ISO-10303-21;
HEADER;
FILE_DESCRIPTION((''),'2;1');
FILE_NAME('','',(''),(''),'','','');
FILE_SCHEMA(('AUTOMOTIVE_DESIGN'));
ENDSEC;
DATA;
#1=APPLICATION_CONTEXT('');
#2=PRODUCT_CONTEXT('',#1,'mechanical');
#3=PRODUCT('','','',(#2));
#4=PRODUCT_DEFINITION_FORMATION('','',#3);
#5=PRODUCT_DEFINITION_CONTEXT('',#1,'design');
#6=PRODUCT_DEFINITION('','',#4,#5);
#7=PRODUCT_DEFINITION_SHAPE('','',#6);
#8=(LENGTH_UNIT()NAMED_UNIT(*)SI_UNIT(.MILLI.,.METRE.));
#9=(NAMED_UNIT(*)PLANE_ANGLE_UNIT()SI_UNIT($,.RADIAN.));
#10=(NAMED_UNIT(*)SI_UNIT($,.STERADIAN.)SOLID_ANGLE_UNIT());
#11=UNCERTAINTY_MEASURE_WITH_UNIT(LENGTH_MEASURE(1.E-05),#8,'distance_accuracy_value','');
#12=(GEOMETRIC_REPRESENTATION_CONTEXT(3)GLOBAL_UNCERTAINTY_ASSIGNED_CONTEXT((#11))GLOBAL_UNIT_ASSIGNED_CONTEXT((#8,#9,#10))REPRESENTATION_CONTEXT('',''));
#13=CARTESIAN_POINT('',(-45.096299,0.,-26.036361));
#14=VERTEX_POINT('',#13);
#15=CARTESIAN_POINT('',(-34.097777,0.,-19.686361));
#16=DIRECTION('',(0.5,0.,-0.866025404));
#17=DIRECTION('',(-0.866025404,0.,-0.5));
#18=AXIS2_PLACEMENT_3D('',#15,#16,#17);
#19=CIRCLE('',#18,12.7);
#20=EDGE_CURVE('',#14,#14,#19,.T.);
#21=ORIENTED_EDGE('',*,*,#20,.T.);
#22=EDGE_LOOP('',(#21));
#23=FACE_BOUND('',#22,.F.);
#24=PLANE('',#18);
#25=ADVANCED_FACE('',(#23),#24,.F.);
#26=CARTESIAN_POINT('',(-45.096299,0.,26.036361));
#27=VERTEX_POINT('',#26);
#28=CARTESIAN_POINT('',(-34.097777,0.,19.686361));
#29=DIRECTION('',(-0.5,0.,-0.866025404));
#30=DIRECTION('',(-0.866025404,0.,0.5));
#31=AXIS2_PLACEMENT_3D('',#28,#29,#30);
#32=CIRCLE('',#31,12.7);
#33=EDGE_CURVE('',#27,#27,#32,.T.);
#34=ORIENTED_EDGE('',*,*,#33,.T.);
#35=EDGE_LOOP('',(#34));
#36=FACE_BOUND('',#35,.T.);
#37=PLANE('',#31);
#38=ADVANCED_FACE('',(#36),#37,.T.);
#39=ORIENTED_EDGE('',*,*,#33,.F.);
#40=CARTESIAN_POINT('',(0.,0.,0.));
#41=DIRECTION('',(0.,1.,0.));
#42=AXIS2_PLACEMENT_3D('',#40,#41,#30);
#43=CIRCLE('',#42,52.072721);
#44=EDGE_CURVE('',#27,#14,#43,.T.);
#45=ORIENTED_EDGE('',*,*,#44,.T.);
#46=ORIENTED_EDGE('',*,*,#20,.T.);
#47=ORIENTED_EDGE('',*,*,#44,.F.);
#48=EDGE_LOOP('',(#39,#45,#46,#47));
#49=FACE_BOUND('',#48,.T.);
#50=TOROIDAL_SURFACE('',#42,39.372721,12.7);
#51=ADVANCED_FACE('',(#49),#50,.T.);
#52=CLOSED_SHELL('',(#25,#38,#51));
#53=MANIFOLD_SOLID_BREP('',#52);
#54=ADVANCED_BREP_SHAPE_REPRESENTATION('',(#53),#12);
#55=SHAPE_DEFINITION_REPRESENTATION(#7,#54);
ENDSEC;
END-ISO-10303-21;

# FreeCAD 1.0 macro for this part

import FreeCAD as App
import Part
import Sketcher

V = App.Vector
Q = App.Units.Quantity

doc = App.newDocument("Part")
body = doc.addObject("PartDesign::Body", "Body")

# Sketch on an angled plane
sketch1 = doc.addObject("Sketcher::SketchObject", "Sketch")
body.addObject(sketch1)
sketch1.Placement = App.Placement(V(0, 0, 0), App.Rotation(V(-0.866025404, 0, 0.5), V(0, 1, 0), V(-0.5, 0, -0.866025404), "ZXY"))
sketch1.addGeometry(Part.Circle(V(39.372721, 0, 0), V(0, 0, 1), 12.7), False)
sketch1.addConstraint([
    Sketcher.Constraint("PointOnObject", 0, 3, -1),
    Sketcher.Constraint("Diameter", 0, Q("1 in")),
    Sketcher.Constraint("DistanceX", -1, 1, 0, 3, Q("39.372721 mm")),
])
revolution = doc.addObject("PartDesign::Revolution", "Revolution")
body.addObject(revolution)
revolution.Profile = sketch1
revolution.ReferenceAxis = (sketch1, ["V_Axis"])
revolution.Angle = 300

doc.recompute()
